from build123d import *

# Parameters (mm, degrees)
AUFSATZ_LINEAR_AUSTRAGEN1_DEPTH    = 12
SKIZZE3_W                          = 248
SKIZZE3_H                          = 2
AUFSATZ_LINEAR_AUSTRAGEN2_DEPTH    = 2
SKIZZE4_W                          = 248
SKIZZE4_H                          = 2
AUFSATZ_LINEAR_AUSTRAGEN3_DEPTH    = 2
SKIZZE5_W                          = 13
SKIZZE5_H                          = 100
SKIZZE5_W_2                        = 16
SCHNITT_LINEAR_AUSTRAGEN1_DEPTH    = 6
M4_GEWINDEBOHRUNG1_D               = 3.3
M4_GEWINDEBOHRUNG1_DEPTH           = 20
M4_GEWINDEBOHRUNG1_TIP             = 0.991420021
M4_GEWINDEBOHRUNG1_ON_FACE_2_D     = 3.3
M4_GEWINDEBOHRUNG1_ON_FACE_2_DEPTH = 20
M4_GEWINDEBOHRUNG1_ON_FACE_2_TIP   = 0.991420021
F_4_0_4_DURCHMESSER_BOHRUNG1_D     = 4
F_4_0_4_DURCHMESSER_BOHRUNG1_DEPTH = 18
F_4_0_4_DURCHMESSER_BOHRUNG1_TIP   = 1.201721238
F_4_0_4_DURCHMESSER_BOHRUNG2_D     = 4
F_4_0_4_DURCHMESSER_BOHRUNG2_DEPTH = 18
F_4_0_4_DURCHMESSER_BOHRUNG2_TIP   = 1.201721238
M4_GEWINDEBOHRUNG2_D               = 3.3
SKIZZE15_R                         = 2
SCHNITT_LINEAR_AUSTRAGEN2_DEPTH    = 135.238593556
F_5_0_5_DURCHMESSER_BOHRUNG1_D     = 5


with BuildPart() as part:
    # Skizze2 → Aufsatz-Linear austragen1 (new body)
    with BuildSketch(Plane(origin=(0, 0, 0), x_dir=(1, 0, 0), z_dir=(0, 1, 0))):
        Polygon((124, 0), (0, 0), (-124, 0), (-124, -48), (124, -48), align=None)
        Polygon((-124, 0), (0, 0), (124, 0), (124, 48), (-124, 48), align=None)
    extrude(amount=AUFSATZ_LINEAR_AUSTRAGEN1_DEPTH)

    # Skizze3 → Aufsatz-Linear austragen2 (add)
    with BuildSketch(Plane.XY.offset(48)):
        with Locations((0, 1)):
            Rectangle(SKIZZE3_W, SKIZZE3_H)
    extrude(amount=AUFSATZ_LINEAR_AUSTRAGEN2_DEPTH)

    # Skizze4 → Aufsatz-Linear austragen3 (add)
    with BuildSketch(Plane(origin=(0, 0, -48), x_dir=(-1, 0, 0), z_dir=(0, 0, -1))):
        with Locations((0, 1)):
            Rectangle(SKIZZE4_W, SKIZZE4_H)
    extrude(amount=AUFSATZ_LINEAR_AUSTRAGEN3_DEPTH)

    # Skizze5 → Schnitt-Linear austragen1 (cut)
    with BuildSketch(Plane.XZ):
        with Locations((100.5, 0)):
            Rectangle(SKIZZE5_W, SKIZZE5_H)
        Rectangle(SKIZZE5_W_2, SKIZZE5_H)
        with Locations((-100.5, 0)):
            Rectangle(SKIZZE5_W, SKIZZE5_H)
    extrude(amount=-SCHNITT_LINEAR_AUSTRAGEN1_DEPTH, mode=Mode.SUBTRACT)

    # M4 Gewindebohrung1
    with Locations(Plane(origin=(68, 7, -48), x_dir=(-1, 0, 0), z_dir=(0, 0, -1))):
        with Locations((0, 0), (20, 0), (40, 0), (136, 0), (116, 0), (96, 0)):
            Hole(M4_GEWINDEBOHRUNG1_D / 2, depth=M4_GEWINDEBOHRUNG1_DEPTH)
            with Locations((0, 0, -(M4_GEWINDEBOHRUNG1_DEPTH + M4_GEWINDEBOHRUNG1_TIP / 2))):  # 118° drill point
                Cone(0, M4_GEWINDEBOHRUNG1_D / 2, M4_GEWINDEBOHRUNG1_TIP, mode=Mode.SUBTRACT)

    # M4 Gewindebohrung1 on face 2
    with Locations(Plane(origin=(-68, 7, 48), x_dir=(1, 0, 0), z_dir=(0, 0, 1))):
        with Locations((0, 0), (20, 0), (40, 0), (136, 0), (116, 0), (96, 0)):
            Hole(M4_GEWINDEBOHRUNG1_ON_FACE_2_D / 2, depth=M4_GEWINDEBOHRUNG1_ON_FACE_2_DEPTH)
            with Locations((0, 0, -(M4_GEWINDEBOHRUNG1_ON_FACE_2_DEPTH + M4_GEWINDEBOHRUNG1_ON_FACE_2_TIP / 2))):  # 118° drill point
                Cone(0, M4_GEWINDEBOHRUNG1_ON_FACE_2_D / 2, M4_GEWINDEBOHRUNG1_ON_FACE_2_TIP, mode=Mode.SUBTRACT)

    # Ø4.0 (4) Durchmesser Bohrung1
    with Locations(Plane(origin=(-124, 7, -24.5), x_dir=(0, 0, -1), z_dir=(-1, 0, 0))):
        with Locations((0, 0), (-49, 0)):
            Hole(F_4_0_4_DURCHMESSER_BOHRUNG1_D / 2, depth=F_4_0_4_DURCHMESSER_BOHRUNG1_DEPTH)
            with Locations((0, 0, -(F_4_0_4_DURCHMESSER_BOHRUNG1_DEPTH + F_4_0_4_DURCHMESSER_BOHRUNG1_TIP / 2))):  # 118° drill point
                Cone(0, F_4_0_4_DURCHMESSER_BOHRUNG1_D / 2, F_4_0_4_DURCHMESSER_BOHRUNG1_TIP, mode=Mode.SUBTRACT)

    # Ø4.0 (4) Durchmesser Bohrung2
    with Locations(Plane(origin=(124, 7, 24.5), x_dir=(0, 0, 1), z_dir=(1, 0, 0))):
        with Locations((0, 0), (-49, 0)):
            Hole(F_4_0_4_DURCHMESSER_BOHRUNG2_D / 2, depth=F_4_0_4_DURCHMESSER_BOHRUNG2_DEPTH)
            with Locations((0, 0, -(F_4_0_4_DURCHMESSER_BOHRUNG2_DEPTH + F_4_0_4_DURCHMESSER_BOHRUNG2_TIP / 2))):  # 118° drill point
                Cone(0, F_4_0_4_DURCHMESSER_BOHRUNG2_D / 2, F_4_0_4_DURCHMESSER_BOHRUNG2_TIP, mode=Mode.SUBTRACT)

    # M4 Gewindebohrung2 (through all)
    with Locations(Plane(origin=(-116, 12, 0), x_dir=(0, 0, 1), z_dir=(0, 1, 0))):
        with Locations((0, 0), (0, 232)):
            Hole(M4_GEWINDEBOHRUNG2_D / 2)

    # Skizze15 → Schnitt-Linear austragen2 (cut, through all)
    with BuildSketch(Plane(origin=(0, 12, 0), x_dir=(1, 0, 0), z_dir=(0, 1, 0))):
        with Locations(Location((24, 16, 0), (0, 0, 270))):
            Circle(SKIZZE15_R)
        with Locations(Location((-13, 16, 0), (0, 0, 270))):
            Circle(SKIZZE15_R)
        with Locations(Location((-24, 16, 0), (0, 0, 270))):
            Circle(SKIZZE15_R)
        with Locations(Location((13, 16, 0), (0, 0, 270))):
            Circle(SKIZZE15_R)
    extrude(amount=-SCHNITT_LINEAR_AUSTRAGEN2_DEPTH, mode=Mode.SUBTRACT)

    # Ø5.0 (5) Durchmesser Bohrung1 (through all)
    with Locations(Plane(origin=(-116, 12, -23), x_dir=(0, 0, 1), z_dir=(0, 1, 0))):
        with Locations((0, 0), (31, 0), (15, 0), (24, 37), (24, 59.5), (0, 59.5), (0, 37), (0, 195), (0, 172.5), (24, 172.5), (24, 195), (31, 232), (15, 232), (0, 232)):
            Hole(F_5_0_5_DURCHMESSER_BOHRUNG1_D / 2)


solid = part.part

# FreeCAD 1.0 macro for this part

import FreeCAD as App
import Part
import Sketcher
from FreeCAD import Vector


def add_polygon(sketch, points):
    """Adds a closed chain of lines whose ends are joined by coincident constraints."""
    first, n = sketch.GeometryCount, len(points)
    for a, b in zip(points, points[1:] + points[:1]):
        sketch.addGeometry(Part.LineSegment(App.Vector(*a, 0), App.Vector(*b, 0)), False)
    for i in range(n):
        sketch.addConstraint(Sketcher.Constraint("Coincident", first + i, 2, first + (i + 1) % n, 1))

doc = App.newDocument("Part")
body = doc.addObject("PartDesign::Body", "Body")

# Sketch on XZ plane
sketch1 = body.newObject("Sketcher::SketchObject", "Sketch")
sketch1.AttachmentSupport = (doc.getObject("XZ_Plane"), [""])
sketch1.MapMode = "FlatFace"
add_polygon(sketch1, [(-124, 48), (124, 48), (124, -48), (-124, -48)])  # lines 0-3
sketch1.addConstraint([
    Sketcher.Constraint("Horizontal", 0),
    Sketcher.Constraint("Vertical", 1),
    Sketcher.Constraint("Horizontal", 2),
    Sketcher.Constraint("Vertical", 3),
    Sketcher.Constraint("Symmetric", 0, 2, 2, 2, -1, 1),
    Sketcher.Constraint("DistanceX", 0, 1, 0, 2, 248.0),
    Sketcher.Constraint("DistanceY", 1, 2, 1, 1, 96.0),
])
pad1 = body.newObject("PartDesign::Pad", "Pad")
pad1.Profile = sketch1
pad1.Length = 12
pad1.Reversed = True

# Sketch on XY plane
sketch2 = body.newObject("Sketcher::SketchObject", "Sketch001")
sketch2.AttachmentSupport = (doc.getObject("XY_Plane"), [""])
sketch2.MapMode = "FlatFace"
sketch2.AttachmentOffset = App.Placement(Vector(0, 0, 48), App.Rotation())
add_polygon(sketch2, [(-124, 2), (-124, 0), (124, 0), (124, 2)])  # lines 0-3
sketch2.addConstraint([
    Sketcher.Constraint("Vertical", 0),
    Sketcher.Constraint("Horizontal", 1),
    Sketcher.Constraint("Vertical", 2),
    Sketcher.Constraint("Horizontal", 3),
    Sketcher.Constraint("Symmetric", 0, 2, 1, 2, -1, 1),
    Sketcher.Constraint("DistanceX", 1, 1, 1, 2, 248.0),
    Sketcher.Constraint("DistanceY", 0, 2, 0, 1, 2.0),
])
pad2 = body.newObject("PartDesign::Pad", "Pad001")
pad2.Profile = sketch2
pad2.Length = 2

# Sketch on XY plane
sketch3 = body.newObject("Sketcher::SketchObject", "Sketch002")
sketch3.AttachmentSupport = (doc.getObject("XY_Plane"), [""])
sketch3.MapMode = "FlatFace"
sketch3.AttachmentOffset = App.Placement(Vector(0, 0, -48), App.Rotation())
add_polygon(sketch3, [(124, 2), (124, 0), (-124, 0), (-124, 2)])  # lines 0-3
sketch3.addConstraint([
    Sketcher.Constraint("Vertical", 0),
    Sketcher.Constraint("Horizontal", 1),
    Sketcher.Constraint("Vertical", 2),
    Sketcher.Constraint("Horizontal", 3),
    Sketcher.Constraint("Symmetric", 0, 2, 1, 2, -1, 1),
    Sketcher.Constraint("DistanceX", 1, 2, 1, 1, 248.0),
    Sketcher.Constraint("DistanceY", 0, 2, 0, 1, 2.0),
])
pad3 = body.newObject("PartDesign::Pad", "Pad002")
pad3.Profile = sketch3
pad3.Length = 2
pad3.Reversed = True

# Sketch on XZ plane
sketch4 = body.newObject("Sketcher::SketchObject", "Sketch003")
sketch4.AttachmentSupport = (doc.getObject("XZ_Plane"), [""])
sketch4.MapMode = "FlatFace"
add_polygon(sketch4, [(94, 50), (94, -50), (107, -50), (107, 50)])  # lines 0-3
add_polygon(sketch4, [(-8, 50), (-8, -50), (8, -50), (8, 50)])  # lines 4-7
add_polygon(sketch4, [(-107, 50), (-107, -50), (-94, -50), (-94, 50)])  # lines 8-11
sketch4.addConstraint([
    Sketcher.Constraint("Vertical", 0),
    Sketcher.Constraint("Horizontal", 1),
    Sketcher.Constraint("Vertical", 2),
    Sketcher.Constraint("Horizontal", 3),
    Sketcher.Constraint("Vertical", 4),
    Sketcher.Constraint("Horizontal", 5),
    Sketcher.Constraint("Vertical", 6),
    Sketcher.Constraint("Horizontal", 7),
    Sketcher.Constraint("Vertical", 8),
    Sketcher.Constraint("Horizontal", 9),
    Sketcher.Constraint("Vertical", 10),
    Sketcher.Constraint("Horizontal", 11),
    Sketcher.Constraint("Symmetric", 4, 2, 6, 2, -1, 1),
    Sketcher.Constraint("Symmetric", 2, 2, 8, 2, -1, 1),
    Sketcher.Constraint("Symmetric", 0, 2, 10, 2, -1, 1),
    Sketcher.Constraint("Horizontal", 1, 2, 4, 2),
    Sketcher.Constraint("Horizontal", 3, 2, 6, 2),
    Sketcher.Constraint("DistanceX", 1, 1, 1, 2, 13.0),
    Sketcher.Constraint("DistanceX", 5, 1, 5, 2, 16.0),
    Sketcher.Constraint("DistanceY", 0, 2, 0, 1, 100.0),
    Sketcher.Constraint("DistanceX", -1, 1, 0, 2, 94.0),
])
pocket1 = body.newObject("PartDesign::Pocket", "Pocket")
pocket1.Profile = sketch4
pocket1.Length = 6

# Sketch on XY plane
sketch5 = body.newObject("Sketcher::SketchObject", "Sketch004")
sketch5.AttachmentSupport = (doc.getObject("XY_Plane"), [""])
sketch5.MapMode = "FlatFace"
sketch5.AttachmentOffset = App.Placement(Vector(0, 0, -48), App.Rotation())
sketch5.addGeometry([
    Part.Circle(Vector(68, 7, 0), Vector(0, 0, 1), 1.6),  # 0
    Part.Circle(Vector(48, 7, 0), Vector(0, 0, 1), 1.6),  # 1
    Part.Circle(Vector(28, 7, 0), Vector(0, 0, 1), 1.6),  # 2
    Part.Circle(Vector(-68, 7, 0), Vector(0, 0, 1), 1.6),  # 3
    Part.Circle(Vector(-48, 7, 0), Vector(0, 0, 1), 1.6),  # 4
    Part.Circle(Vector(-28, 7, 0), Vector(0, 0, 1), 1.6),  # 5
], False)
sketch5.addConstraint([
    Sketcher.Constraint("Equal", 0, 1),
    Sketcher.Constraint("Equal", 1, 2),
    Sketcher.Constraint("Equal", 2, 3),
    Sketcher.Constraint("Equal", 3, 4),
    Sketcher.Constraint("Equal", 4, 5),
    Sketcher.Constraint("Symmetric", 0, 3, 3, 3, -2),
    Sketcher.Constraint("Symmetric", 1, 3, 4, 3, -2),
    Sketcher.Constraint("Symmetric", 2, 3, 5, 3, -2),
    Sketcher.Constraint("Horizontal", 0, 3, 1, 3),
    Sketcher.Constraint("Horizontal", 1, 3, 2, 3),
    Sketcher.Constraint("Diameter", 0, 3.3),
    Sketcher.Constraint("DistanceX", -1, 1, 0, 3, 68.0),
    Sketcher.Constraint("DistanceY", -1, 1, 0, 3, 7.0),
    Sketcher.Constraint("DistanceX", -1, 1, 1, 3, 48.0),
    Sketcher.Constraint("DistanceX", -1, 1, 2, 3, 28.0),
])
doc.recompute()
hole = body.newObject("PartDesign::Hole", "Hole")
hole.Profile = sketch5
hole.ThreadType = "None"
hole.Diameter = 3.3
hole.DepthType = "Dimension"
hole.Depth = 20
hole.DrillPoint = "Angled"
hole.DrillPointAngle = 118
hole.Reversed = True

# Sketch on XY plane
sketch6 = body.newObject("Sketcher::SketchObject", "Sketch005")
sketch6.AttachmentSupport = (doc.getObject("XY_Plane"), [""])
sketch6.MapMode = "FlatFace"
sketch6.AttachmentOffset = App.Placement(Vector(0, 0, 48), App.Rotation())
sketch6.addGeometry([
    Part.Circle(Vector(-68, 7, 0), Vector(0, 0, 1), 1.6),  # 0
    Part.Circle(Vector(-48, 7, 0), Vector(0, 0, 1), 1.6),  # 1
    Part.Circle(Vector(-28, 7, 0), Vector(0, 0, 1), 1.6),  # 2
    Part.Circle(Vector(68, 7, 0), Vector(0, 0, 1), 1.6),  # 3
    Part.Circle(Vector(48, 7, 0), Vector(0, 0, 1), 1.6),  # 4
    Part.Circle(Vector(28, 7, 0), Vector(0, 0, 1), 1.6),  # 5
], False)
sketch6.addConstraint([
    Sketcher.Constraint("Equal", 0, 1),
    Sketcher.Constraint("Equal", 1, 2),
    Sketcher.Constraint("Equal", 2, 3),
    Sketcher.Constraint("Equal", 3, 4),
    Sketcher.Constraint("Equal", 4, 5),
    Sketcher.Constraint("Symmetric", 0, 3, 3, 3, -2),
    Sketcher.Constraint("Symmetric", 1, 3, 4, 3, -2),
    Sketcher.Constraint("Symmetric", 2, 3, 5, 3, -2),
    Sketcher.Constraint("Horizontal", 0, 3, 1, 3),
    Sketcher.Constraint("Horizontal", 1, 3, 2, 3),
    Sketcher.Constraint("Diameter", 0, 3.3),
    Sketcher.Constraint("DistanceX", 0, 3, -1, 1, 68.0),
    Sketcher.Constraint("DistanceY", -1, 1, 0, 3, 7.0),
    Sketcher.Constraint("DistanceX", 1, 3, -1, 1, 48.0),
    Sketcher.Constraint("DistanceX", 2, 3, -1, 1, 28.0),
])
doc.recompute()
hole2 = body.newObject("PartDesign::Hole", "Hole001")
hole2.Profile = sketch6
hole2.ThreadType = "None"
hole2.Diameter = 3.3
hole2.DepthType = "Dimension"
hole2.Depth = 20
hole2.DrillPoint = "Angled"
hole2.DrillPointAngle = 118

# Sketch on YZ plane
sketch7 = body.newObject("Sketcher::SketchObject", "Sketch006")
sketch7.AttachmentSupport = (doc.getObject("YZ_Plane"), [""])
sketch7.MapMode = "FlatFace"
sketch7.AttachmentOffset = App.Placement(Vector(0, 0, -124), App.Rotation())
sketch7.addGeometry([
    Part.Circle(Vector(7, -24.5, 0), Vector(0, 0, 1), 2),
    Part.Circle(Vector(7, 24.5, 0), Vector(0, 0, 1), 2),
], False)
sketch7.addConstraint([
    Sketcher.Constraint("Equal", 0, 1),
    Sketcher.Constraint("Symmetric", 0, 3, 1, 3, -1),
    Sketcher.Constraint("Diameter", 0, 4.0),
    Sketcher.Constraint("DistanceX", -1, 1, 0, 3, 7.0),
    Sketcher.Constraint("DistanceY", 0, 3, 1, 3, 49.0),
])
doc.recompute()
hole3 = body.newObject("PartDesign::Hole", "Hole002")
hole3.Profile = sketch7
hole3.ThreadType = "None"
hole3.Diameter = 4
hole3.DepthType = "Dimension"
hole3.Depth = 18
hole3.DrillPoint = "Angled"
hole3.DrillPointAngle = 118
hole3.Reversed = True

# Sketch on YZ plane
sketch8 = body.newObject("Sketcher::SketchObject", "Sketch007")
sketch8.AttachmentSupport = (doc.getObject("YZ_Plane"), [""])
sketch8.MapMode = "FlatFace"
sketch8.AttachmentOffset = App.Placement(Vector(0, 0, 124), App.Rotation())
sketch8.addGeometry([
    Part.Circle(Vector(7, 24.5, 0), Vector(0, 0, 1), 2),
    Part.Circle(Vector(7, -24.5, 0), Vector(0, 0, 1), 2),
], False)
sketch8.addConstraint([
    Sketcher.Constraint("Equal", 0, 1),
    Sketcher.Constraint("Symmetric", 0, 3, 1, 3, -1),
    Sketcher.Constraint("Diameter", 0, 4.0),
    Sketcher.Constraint("DistanceX", -1, 1, 0, 3, 7.0),
    Sketcher.Constraint("DistanceY", 1, 3, 0, 3, 49.0),
])
doc.recompute()
hole4 = body.newObject("PartDesign::Hole", "Hole003")
hole4.Profile = sketch8
hole4.ThreadType = "None"
hole4.Diameter = 4
hole4.DepthType = "Dimension"
hole4.Depth = 18
hole4.DrillPoint = "Angled"
hole4.DrillPointAngle = 118

# Sketch on XZ plane
sketch9 = body.newObject("Sketcher::SketchObject", "Sketch008")
sketch9.AttachmentSupport = (doc.getObject("XZ_Plane"), [""])
sketch9.MapMode = "FlatFace"
sketch9.AttachmentOffset = App.Placement(Vector(0, 0, -12), App.Rotation())
sketch9.addGeometry([
    Part.Circle(Vector(-116, 0, 0), Vector(0, 0, 1), 1.6),
    Part.Circle(Vector(116, 0, 0), Vector(0, 0, 1), 1.6),
], False)
sketch9.addConstraint([
    Sketcher.Constraint("Equal", 0, 1),
    Sketcher.Constraint("Symmetric", 0, 3, 1, 3, -1, 1),
    Sketcher.Constraint("PointOnObject", 0, 3, -1),
    Sketcher.Constraint("Diameter", 0, 3.3),
    Sketcher.Constraint("DistanceX", 0, 3, -1, 1, 116.0),
])
doc.recompute()
hole5 = body.newObject("PartDesign::Hole", "Hole004")
hole5.Profile = sketch9
hole5.ThreadType = "None"
hole5.Diameter = 3.3
hole5.DepthType = "ThroughAll"
hole5.Reversed = True

# Sketch on XZ plane
sketch10 = body.newObject("Sketcher::SketchObject", "Sketch009")
sketch10.AttachmentSupport = (doc.getObject("XZ_Plane"), [""])
sketch10.MapMode = "FlatFace"
sketch10.AttachmentOffset = App.Placement(Vector(0, 0, -12), App.Rotation())
sketch10.addGeometry([
    Part.Circle(Vector(24, -16, 0), Vector(0, 0, 1), 2),
    Part.Circle(Vector(-13, -16, 0), Vector(0, 0, 1), 2),
    Part.Circle(Vector(-24, -16, 0), Vector(0, 0, 1), 2),
    Part.Circle(Vector(13, -16, 0), Vector(0, 0, 1), 2),
], False)
sketch10.addConstraint([
    Sketcher.Constraint("Equal", 0, 1),
    Sketcher.Constraint("Equal", 1, 2),
    Sketcher.Constraint("Equal", 2, 3),
    Sketcher.Constraint("Symmetric", 0, 3, 2, 3, -2),
    Sketcher.Constraint("Symmetric", 1, 3, 3, 3, -2),
    Sketcher.Constraint("Horizontal", 0, 3, 1, 3),
    Sketcher.Constraint("Diameter", 0, 4.0),
    Sketcher.Constraint("DistanceX", -1, 1, 0, 3, 24.0),
    Sketcher.Constraint("DistanceY", 0, 3, -1, 1, 16.0),
    Sketcher.Constraint("DistanceX", 1, 3, -1, 1, 13.0),
])
pocket2 = body.newObject("PartDesign::Pocket", "Pocket001")
pocket2.Profile = sketch10
pocket2.Type = "ThroughAll"
pocket2.Reversed = True

# Sketch on XZ plane
sketch11 = body.newObject("Sketcher::SketchObject", "Sketch010")
sketch11.AttachmentSupport = (doc.getObject("XZ_Plane"), [""])
sketch11.MapMode = "FlatFace"
sketch11.AttachmentOffset = App.Placement(Vector(0, 0, -12), App.Rotation())
sketch11.addGeometry([
    Part.Circle(Vector(-116, -23, 0), Vector(0, 0, 1), 2.5),  # 0
    Part.Circle(Vector(-116, 8, 0), Vector(0, 0, 1), 2.5),  # 1
    Part.Circle(Vector(-116, -8, 0), Vector(0, 0, 1), 2.5),  # 2
    Part.Circle(Vector(-79, 1, 0), Vector(0, 0, 1), 2.5),  # 3
    Part.Circle(Vector(-56.5, 1, 0), Vector(0, 0, 1), 2.5),  # 4
    Part.Circle(Vector(-56.5, -23, 0), Vector(0, 0, 1), 2.5),  # 5
    Part.Circle(Vector(-79, -23, 0), Vector(0, 0, 1), 2.5),  # 6
    Part.Circle(Vector(79, -23, 0), Vector(0, 0, 1), 2.5),  # 7
    Part.Circle(Vector(56.5, -23, 0), Vector(0, 0, 1), 2.5),  # 8
    Part.Circle(Vector(56.5, 1, 0), Vector(0, 0, 1), 2.5),  # 9
    Part.Circle(Vector(79, 1, 0), Vector(0, 0, 1), 2.5),  # 10
    Part.Circle(Vector(116, 8, 0), Vector(0, 0, 1), 2.5),  # 11
    Part.Circle(Vector(116, -8, 0), Vector(0, 0, 1), 2.5),  # 12
    Part.Circle(Vector(116, -23, 0), Vector(0, 0, 1), 2.5),  # 13
], False)
sketch11.addConstraint([
    Sketcher.Constraint("Equal", 0, 1),
    Sketcher.Constraint("Equal", 1, 2),
    Sketcher.Constraint("Equal", 2, 3),
    Sketcher.Constraint("Equal", 3, 4),
    Sketcher.Constraint("Equal", 4, 5),
    Sketcher.Constraint("Equal", 5, 6),
    Sketcher.Constraint("Equal", 6, 7),
    Sketcher.Constraint("Equal", 7, 8),
    Sketcher.Constraint("Equal", 8, 9),
    Sketcher.Constraint("Equal", 9, 10),
    Sketcher.Constraint("Equal", 10, 11),
    Sketcher.Constraint("Equal", 11, 12),
    Sketcher.Constraint("Equal", 12, 13),
    Sketcher.Constraint("Symmetric", 2, 3, 11, 3, -1, 1),
    Sketcher.Constraint("Symmetric", 1, 3, 12, 3, -1, 1),
    Sketcher.Constraint("Symmetric", 6, 3, 7, 3, -2),
    Sketcher.Constraint("Symmetric", 5, 3, 8, 3, -2),
    Sketcher.Constraint("Symmetric", 4, 3, 9, 3, -2),
    Sketcher.Constraint("Symmetric", 3, 3, 10, 3, -2),
    Sketcher.Constraint("Symmetric", 1, 3, 11, 3, -2),
    Sketcher.Constraint("Symmetric", 0, 3, 13, 3, -2),
    Sketcher.Constraint("Horizontal", 3, 3, 4, 3),
    Sketcher.Constraint("Horizontal", 0, 3, 5, 3),
    Sketcher.Constraint("Horizontal", 5, 3, 6, 3),
    Sketcher.Constraint("Vertical", 0, 3, 1, 3),
    Sketcher.Constraint("Vertical", 4, 3, 5, 3),
    Sketcher.Constraint("Vertical", 3, 3, 6, 3),
    Sketcher.Constraint("Diameter", 0, 5.0),
    Sketcher.Constraint("DistanceX", 0, 3, -1, 1, 116.0),
    Sketcher.Constraint("DistanceY", 0, 3, -1, 1, 23.0),
    Sketcher.Constraint("DistanceY", -1, 1, 1, 3, 8.0),
    Sketcher.Constraint("DistanceX", 3, 3, -1, 1, 79.0),
    Sketcher.Constraint("DistanceY", -1, 1, 3, 3, 1.0),
    Sketcher.Constraint("DistanceX", 5, 3, 8, 3, 113.0),
])
doc.recompute()
hole6 = body.newObject("PartDesign::Hole", "Hole005")
hole6.Profile = sketch11
hole6.ThreadType = "None"
hole6.Diameter = 5
hole6.DepthType = "ThroughAll"
hole6.Reversed = True

doc.recompute()
